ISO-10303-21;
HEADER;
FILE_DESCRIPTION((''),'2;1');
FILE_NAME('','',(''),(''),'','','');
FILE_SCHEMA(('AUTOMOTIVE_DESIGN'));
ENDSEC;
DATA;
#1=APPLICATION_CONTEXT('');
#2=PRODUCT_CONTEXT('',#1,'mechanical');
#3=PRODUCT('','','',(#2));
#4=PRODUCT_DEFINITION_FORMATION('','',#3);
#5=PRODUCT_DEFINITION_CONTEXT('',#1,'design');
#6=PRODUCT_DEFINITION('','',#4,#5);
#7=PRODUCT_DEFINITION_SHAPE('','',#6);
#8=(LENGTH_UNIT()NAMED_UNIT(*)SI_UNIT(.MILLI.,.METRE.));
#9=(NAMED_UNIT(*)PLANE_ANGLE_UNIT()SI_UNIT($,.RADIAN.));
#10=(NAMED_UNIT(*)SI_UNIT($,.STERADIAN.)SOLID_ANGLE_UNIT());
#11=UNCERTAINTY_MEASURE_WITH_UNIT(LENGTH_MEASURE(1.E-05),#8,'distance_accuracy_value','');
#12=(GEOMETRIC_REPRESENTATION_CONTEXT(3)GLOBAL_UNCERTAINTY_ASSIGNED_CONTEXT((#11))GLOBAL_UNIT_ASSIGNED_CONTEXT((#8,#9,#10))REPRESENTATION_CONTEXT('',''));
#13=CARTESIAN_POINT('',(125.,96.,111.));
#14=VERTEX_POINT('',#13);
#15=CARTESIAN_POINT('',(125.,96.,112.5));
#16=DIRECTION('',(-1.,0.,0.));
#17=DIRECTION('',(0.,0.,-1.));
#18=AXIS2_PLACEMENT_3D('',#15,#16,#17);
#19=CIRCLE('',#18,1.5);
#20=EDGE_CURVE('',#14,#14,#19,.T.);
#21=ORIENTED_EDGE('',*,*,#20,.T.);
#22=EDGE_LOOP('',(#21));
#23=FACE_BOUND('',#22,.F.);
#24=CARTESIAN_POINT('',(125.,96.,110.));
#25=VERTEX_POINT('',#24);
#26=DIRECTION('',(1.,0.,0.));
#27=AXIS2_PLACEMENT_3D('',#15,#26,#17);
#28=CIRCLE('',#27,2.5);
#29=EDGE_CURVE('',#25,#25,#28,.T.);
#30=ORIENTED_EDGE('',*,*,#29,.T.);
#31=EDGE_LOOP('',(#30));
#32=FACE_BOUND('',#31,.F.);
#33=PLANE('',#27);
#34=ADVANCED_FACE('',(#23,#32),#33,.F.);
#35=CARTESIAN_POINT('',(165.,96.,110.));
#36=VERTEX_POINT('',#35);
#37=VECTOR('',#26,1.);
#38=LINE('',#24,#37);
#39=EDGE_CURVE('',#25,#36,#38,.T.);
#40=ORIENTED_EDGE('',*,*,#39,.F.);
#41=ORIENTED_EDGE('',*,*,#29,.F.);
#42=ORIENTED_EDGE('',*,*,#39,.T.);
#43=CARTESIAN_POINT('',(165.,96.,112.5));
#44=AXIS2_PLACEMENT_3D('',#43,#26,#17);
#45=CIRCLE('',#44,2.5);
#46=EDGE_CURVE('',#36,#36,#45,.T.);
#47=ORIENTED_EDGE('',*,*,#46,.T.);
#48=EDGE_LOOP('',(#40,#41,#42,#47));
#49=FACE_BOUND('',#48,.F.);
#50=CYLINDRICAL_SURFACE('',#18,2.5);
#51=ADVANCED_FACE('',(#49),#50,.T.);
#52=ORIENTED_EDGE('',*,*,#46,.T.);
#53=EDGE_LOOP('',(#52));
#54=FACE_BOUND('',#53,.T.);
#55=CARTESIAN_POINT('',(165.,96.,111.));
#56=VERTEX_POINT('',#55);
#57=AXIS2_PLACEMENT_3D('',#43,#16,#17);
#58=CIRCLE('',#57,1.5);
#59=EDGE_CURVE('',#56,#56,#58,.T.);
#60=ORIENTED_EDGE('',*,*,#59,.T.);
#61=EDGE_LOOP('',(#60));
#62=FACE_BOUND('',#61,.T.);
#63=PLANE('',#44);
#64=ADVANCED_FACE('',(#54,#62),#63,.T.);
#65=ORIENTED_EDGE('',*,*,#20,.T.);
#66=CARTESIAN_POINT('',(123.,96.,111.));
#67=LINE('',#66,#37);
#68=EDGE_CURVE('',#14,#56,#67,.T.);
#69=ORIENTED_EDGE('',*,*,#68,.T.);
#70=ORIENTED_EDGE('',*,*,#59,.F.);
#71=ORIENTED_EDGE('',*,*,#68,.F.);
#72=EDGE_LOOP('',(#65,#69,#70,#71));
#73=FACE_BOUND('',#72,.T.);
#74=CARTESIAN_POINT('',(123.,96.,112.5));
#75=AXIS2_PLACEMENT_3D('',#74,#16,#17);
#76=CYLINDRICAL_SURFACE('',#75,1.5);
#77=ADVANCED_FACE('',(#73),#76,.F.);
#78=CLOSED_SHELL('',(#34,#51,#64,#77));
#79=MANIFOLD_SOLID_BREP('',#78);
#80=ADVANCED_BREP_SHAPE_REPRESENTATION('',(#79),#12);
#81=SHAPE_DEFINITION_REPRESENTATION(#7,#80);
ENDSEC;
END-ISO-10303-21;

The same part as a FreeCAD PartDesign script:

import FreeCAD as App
import Part
import Sketcher

doc = App.newDocument("Part")
params = doc.addObject("Spreadsheet::Sheet", "Params")
for row, (alias, value) in enumerate([
    ("sketch1_diameter", "3 mm"),
    ("pad1_length", "44 mm"),
    ("sketch2_diameter", "5 mm"),
    ("pad2_length", "40 mm"),
], start=1):
    params.set(f"A{row}", alias)
    params.set(f"B{row}", "=" + value)
    params.setAlias(f"B{row}", alias)

body = doc.addObject("PartDesign::Body", "Body")

# Sketch on XY plane
sketch1 = body.newObject("Sketcher::SketchObject", "Sketch")
sketch1.AttachmentSupport = (doc.getObject("XY_Plane"), [""])
sketch1.MapMode = "FlatFace"
sketch1.addGeometry(Part.Circle(App.Vector(0, 0, 0), App.Vector(0, 0, 1), 1.5), False)
sketch1.addConstraint([
    Sketcher.Constraint("Coincident", 0, 3, -1, 1),
    Sketcher.Constraint("Diameter", 0, 3.0),
])
sketch1.setExpression("Constraints[1]", "Params.sketch1_diameter")
pad1 = body.newObject("PartDesign::Pad", "Pad")
pad1.Profile = sketch1
pad1.setExpression("Length", "Params.pad1_length")
body2 = doc.addObject("PartDesign::Body", "Body001")
doc.recompute()

body.Placement = App.Placement(App.Vector(0, 0, 0), App.Rotation(App.Vector(0, 1, 0), 90))
boolean = body2.newObject("PartDesign::Boolean", "Boolean")
boolean.Type = "Fuse"
boolean.addObjects([body])
body3 = doc.addObject("PartDesign::Body", "Body002")
doc.recompute()

body2.Placement = App.Placement(App.Vector(-2, 0, 0), App.Rotation(App.Vector(0, 0, 1), 0))
boolean2 = body3.newObject("PartDesign::Boolean", "Boolean001")
boolean2.Type = "Fuse"
boolean2.addObjects([body2])
body4 = doc.addObject("PartDesign::Body", "Body003")

# Sketch on XY plane
sketch2 = body4.newObject("Sketcher::SketchObject", "Sketch001")
sketch2.AttachmentSupport = (doc.getObject("XY_Plane003"), [""])
sketch2.MapMode = "FlatFace"
sketch2.addGeometry(Part.Circle(App.Vector(0, 0, 0), App.Vector(0, 0, 1), 2.5), False)
sketch2.addConstraint([
    Sketcher.Constraint("Coincident", 0, 3, -1, 1),
    Sketcher.Constraint("Diameter", 0, 5.0),
])
sketch2.setExpression("Constraints[1]", "Params.sketch2_diameter")
pad2 = body4.newObject("PartDesign::Pad", "Pad001")
pad2.Profile = sketch2
pad2.setExpression("Length", "Params.pad2_length")
body5 = doc.addObject("PartDesign::Body", "Body004")
doc.recompute()

body4.Placement = App.Placement(App.Vector(0, 0, 0), App.Rotation(App.Vector(0, 1, 0), 90))
boolean3 = body5.newObject("PartDesign::Boolean", "Boolean002")
boolean3.Type = "Fuse"
boolean3.addObjects([body4])
doc.recompute()

boolean4 = body5.newObject("PartDesign::Boolean", "Boolean003")
boolean4.Type = "Cut"
boolean4.addObjects([body3])
body6 = doc.addObject("PartDesign::Body", "Body005")
doc.recompute()

body5.Placement = App.Placement(App.Vector(125, 96, 112.5), App.Rotation(App.Vector(0, 0, 1), 0))
boolean5 = body6.newObject("PartDesign::Boolean", "Boolean004")
boolean5.Type = "Fuse"
boolean5.addObjects([body5])

doc.recompute()
